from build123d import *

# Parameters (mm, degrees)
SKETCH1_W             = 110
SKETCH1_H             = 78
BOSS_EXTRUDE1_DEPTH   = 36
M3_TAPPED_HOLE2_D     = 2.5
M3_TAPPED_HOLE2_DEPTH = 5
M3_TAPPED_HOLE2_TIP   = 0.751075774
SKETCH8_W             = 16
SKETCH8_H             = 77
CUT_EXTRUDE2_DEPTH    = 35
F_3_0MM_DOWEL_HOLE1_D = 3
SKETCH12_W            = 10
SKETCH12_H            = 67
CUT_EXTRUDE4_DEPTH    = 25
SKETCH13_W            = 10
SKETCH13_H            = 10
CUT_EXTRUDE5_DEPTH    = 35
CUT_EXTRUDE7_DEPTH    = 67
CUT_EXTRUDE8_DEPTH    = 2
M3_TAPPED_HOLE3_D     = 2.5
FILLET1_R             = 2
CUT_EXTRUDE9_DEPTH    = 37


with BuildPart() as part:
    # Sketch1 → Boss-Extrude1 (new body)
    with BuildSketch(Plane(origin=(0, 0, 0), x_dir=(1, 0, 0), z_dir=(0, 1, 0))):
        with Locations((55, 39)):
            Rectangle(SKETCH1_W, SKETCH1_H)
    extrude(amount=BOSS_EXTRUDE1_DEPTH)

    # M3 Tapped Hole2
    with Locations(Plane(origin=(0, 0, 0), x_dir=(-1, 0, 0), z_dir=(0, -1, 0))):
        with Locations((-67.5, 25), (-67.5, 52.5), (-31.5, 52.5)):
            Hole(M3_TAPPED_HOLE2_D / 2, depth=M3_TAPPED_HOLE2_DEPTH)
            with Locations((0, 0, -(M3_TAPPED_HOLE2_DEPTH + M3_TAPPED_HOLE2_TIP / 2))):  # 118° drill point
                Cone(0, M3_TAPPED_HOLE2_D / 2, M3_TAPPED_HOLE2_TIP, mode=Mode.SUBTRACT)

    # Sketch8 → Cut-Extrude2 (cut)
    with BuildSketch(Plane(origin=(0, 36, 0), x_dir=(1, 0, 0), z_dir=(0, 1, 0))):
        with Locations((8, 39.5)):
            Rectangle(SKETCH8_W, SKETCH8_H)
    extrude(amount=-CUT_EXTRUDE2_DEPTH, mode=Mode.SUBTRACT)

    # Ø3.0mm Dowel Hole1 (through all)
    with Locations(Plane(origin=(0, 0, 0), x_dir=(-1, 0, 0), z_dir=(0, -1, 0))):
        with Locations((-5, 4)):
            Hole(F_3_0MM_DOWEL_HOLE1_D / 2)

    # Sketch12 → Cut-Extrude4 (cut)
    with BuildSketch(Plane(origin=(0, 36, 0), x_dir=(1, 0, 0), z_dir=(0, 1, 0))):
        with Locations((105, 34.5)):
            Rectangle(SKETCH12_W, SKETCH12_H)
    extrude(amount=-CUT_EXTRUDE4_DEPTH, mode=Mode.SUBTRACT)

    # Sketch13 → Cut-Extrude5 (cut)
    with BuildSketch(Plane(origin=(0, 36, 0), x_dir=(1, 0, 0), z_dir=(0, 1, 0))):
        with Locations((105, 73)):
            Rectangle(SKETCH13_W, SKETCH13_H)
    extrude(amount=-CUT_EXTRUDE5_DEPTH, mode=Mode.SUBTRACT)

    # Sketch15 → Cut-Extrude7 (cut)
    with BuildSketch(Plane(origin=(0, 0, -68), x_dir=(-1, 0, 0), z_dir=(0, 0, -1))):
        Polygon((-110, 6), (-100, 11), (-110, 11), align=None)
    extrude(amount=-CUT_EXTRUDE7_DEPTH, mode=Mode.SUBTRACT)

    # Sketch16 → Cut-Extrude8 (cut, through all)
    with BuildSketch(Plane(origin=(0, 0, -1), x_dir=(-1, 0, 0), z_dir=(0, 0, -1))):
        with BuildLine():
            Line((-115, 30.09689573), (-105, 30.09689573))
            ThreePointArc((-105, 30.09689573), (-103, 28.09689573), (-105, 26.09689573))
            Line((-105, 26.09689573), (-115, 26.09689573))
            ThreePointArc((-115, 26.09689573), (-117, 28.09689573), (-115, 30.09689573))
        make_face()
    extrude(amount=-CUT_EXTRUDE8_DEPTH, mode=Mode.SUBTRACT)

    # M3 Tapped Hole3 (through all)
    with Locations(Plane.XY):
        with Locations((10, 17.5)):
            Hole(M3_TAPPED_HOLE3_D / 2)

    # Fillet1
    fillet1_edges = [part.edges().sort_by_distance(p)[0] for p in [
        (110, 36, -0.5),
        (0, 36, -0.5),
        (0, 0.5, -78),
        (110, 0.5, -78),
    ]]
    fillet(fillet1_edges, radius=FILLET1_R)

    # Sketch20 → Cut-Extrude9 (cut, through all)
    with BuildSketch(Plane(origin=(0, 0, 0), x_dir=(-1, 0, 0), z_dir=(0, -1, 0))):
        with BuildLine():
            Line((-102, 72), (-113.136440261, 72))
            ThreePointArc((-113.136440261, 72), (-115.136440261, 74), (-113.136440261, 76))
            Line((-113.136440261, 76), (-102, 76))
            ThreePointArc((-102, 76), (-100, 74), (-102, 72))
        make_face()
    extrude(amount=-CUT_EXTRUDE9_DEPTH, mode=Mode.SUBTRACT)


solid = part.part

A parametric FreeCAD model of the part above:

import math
import FreeCAD as App
import Part
import Sketcher
from FreeCAD import Vector
Q = App.Units.Quantity


def edges_at(feature, points):
    """Names of the edges that pass closest to the given points."""
    edges = feature.Shape.Edges
    near = lambda p: min(range(len(edges)), key=lambda i: edges[i].distToShape(Part.Vertex(*p))[0])
    return sorted({f"Edge{near(p) + 1}" for p in points})


def add_polygon(sketch, points):
    """Adds a closed chain of lines whose ends are joined by coincident constraints."""
    first, n = sketch.GeometryCount, len(points)
    for a, b in zip(points, points[1:] + points[:1]):
        sketch.addGeometry(Part.LineSegment(App.Vector(*a, 0), App.Vector(*b, 0)), False)
    for i in range(n):
        sketch.addConstraint(Sketcher.Constraint("Coincident", first + i, 2, first + (i + 1) % n, 1))

doc = App.newDocument("Part")
body = doc.addObject("PartDesign::Body", "Body")

sketch1 = doc.addObject("Sketcher::SketchObject", "Sketch")
body.addObject(sketch1)
sketch1.AttachmentSupport = (doc.XZ_Plane, [""])
sketch1.MapMode = "FlatFace"
add_polygon(sketch1, [(0, -78), (0, 0), (110, 0), (110, -78)])
sketch1.addConstraint([
    Sketcher.Constraint("Vertical", 0),
    Sketcher.Constraint("Horizontal", 1),
    Sketcher.Constraint("Vertical", 2),
    Sketcher.Constraint("Horizontal", 3),
    Sketcher.Constraint("Coincident", 0, 2, -1, 1),
    Sketcher.Constraint("DistanceX", 1, 1, 1, 2, Q("110 mm")),
    Sketcher.Constraint("DistanceY", 0, 1, 0, 2, Q("78 mm")),
])
pad1 = doc.addObject("PartDesign::Pad", "Pad")
body.addObject(pad1)
pad1.Profile = sketch1
pad1.Length = 36
pad1.Reversed = True

sketch2 = doc.addObject("Sketcher::SketchObject", "Sketch001")
body.addObject(sketch2)
sketch2.AttachmentSupport = (doc.XZ_Plane, [""])
sketch2.MapMode = "FlatFace"
sketch2.addGeometry([
    Part.Circle(Vector(67.5, -25, 0), Vector(0, 0, 1), 1.25),
    Part.Circle(Vector(67.5, -52.5, 0), Vector(0, 0, 1), 1.25),
    Part.Circle(Vector(31.5, -52.5, 0), Vector(0, 0, 1), 1.25),
], False)
sketch2.addConstraint([
    Sketcher.Constraint("Equal", 0, 1),
    Sketcher.Constraint("Equal", 1, 2),
    Sketcher.Constraint("Horizontal", 1, 3, 2, 3),
    Sketcher.Constraint("Vertical", 0, 3, 1, 3),
    Sketcher.Constraint("Diameter", 0, Q("2.5 mm")),
    Sketcher.Constraint("DistanceY", 0, 3, -1, 1, Q("25 mm")),
    Sketcher.Constraint("DistanceX", 2, 3, 1, 3, Q("36 mm")),
    Sketcher.Constraint("DistanceX", -1, 1, 0, 3, Q("67.5 mm")),
    Sketcher.Constraint("DistanceY", 1, 3, -1, 1, Q("52.5 mm")),
])
doc.recompute()
hole = doc.addObject("PartDesign::Hole", "Hole")
body.addObject(hole)
hole.Profile = sketch2
hole.ThreadType = "None"
hole.Diameter = 2.5
hole.DepthType = "Dimension"
hole.Depth = 5
hole.DrillPoint = "Angled"
hole.DrillPointAngle = 118

sketch3 = doc.addObject("Sketcher::SketchObject", "Sketch002")
body.addObject(sketch3)
sketch3.AttachmentSupport = (doc.XZ_Plane, [""])
sketch3.MapMode = "FlatFace"
sketch3.AttachmentOffset = App.Placement(Vector(0, 0, -36), App.Rotation())
add_polygon(sketch3, [(0, -78), (0, -1), (16, -1), (16, -78)])
sketch3.addConstraint([
    Sketcher.Constraint("Vertical", 0),
    Sketcher.Constraint("Horizontal", 1),
    Sketcher.Constraint("Vertical", 2),
    Sketcher.Constraint("Horizontal", 3),
    Sketcher.Constraint("PointOnObject", 0, 2, -2),
    Sketcher.Constraint("DistanceX", 1, 1, 1, 2, Q("16 mm")),
    Sketcher.Constraint("DistanceY", 0, 1, 0, 2, Q("77 mm")),
    Sketcher.Constraint("DistanceY", 0, 2, -1, 1, Q("1 mm")),
])
pocket1 = doc.addObject("PartDesign::Pocket", "Pocket")
body.addObject(pocket1)
pocket1.Profile = sketch3
pocket1.Length = 35
pocket1.Reversed = True

sketch4 = doc.addObject("Sketcher::SketchObject", "Sketch003")
body.addObject(sketch4)
sketch4.AttachmentSupport = (doc.XZ_Plane, [""])
sketch4.MapMode = "FlatFace"
sketch4.addGeometry(Part.Circle(Vector(5, -4, 0), Vector(0, 0, 1), 1.5), False)
sketch4.addConstraint([
    Sketcher.Constraint("Diameter", 0, Q("3 mm")),
    Sketcher.Constraint("DistanceX", -1, 1, 0, 3, Q("5 mm")),
    Sketcher.Constraint("DistanceY", 0, 3, -1, 1, Q("4 mm")),
])
doc.recompute()
hole2 = doc.addObject("PartDesign::Hole", "Hole001")
body.addObject(hole2)
hole2.Profile = sketch4
hole2.ThreadType = "None"
hole2.Diameter = 3
hole2.DepthType = "ThroughAll"

sketch5 = doc.addObject("Sketcher::SketchObject", "Sketch004")
body.addObject(sketch5)
sketch5.AttachmentSupport = (doc.XZ_Plane, [""])
sketch5.MapMode = "FlatFace"
sketch5.AttachmentOffset = App.Placement(Vector(0, 0, -36), App.Rotation())
add_polygon(sketch5, [(100, -68), (100, -1), (110, -1), (110, -68)])
sketch5.addConstraint([
    Sketcher.Constraint("Vertical", 0),
    Sketcher.Constraint("Horizontal", 1),
    Sketcher.Constraint("Vertical", 2),
    Sketcher.Constraint("Horizontal", 3),
    Sketcher.Constraint("DistanceX", 1, 1, 1, 2, Q("10 mm")),
    Sketcher.Constraint("DistanceY", 0, 1, 0, 2, Q("67 mm")),
    Sketcher.Constraint("DistanceX", -1, 1, 0, 2, Q("100 mm")),
    Sketcher.Constraint("DistanceY", 0, 2, -1, 1, Q("1 mm")),
])
pocket2 = doc.addObject("PartDesign::Pocket", "Pocket001")
body.addObject(pocket2)
pocket2.Profile = sketch5
pocket2.Length = 25
pocket2.Reversed = True

sketch6 = doc.addObject("Sketcher::SketchObject", "Sketch005")
body.addObject(sketch6)
sketch6.AttachmentSupport = (doc.XZ_Plane, [""])
sketch6.MapMode = "FlatFace"
sketch6.AttachmentOffset = App.Placement(Vector(0, 0, -36), App.Rotation())
add_polygon(sketch6, [(100, -78), (100, -68), (110, -68), (110, -78)])
sketch6.addConstraint([
    Sketcher.Constraint("Vertical", 0),
    Sketcher.Constraint("Horizontal", 1),
    Sketcher.Constraint("Vertical", 2),
    Sketcher.Constraint("Horizontal", 3),
    Sketcher.Constraint("Equal", 3, 0),
    Sketcher.Constraint("DistanceX", 1, 1, 1, 2, Q("10 mm")),
    Sketcher.Constraint("DistanceX", -1, 1, 0, 2, Q("100 mm")),
    Sketcher.Constraint("DistanceY", 0, 2, -1, 1, Q("68 mm")),
])
pocket3 = doc.addObject("PartDesign::Pocket", "Pocket002")
body.addObject(pocket3)
pocket3.Profile = sketch6
pocket3.Length = 35
pocket3.Reversed = True

sketch7 = doc.addObject("Sketcher::SketchObject", "Sketch006")
body.addObject(sketch7)
sketch7.AttachmentSupport = (doc.XY_Plane, [""])
sketch7.MapMode = "FlatFace"
sketch7.AttachmentOffset = App.Placement(Vector(0, 0, -68), App.Rotation())
add_polygon(sketch7, [(110, 6), (100, 11), (110, 11)])
sketch7.addConstraint([
    Sketcher.Constraint("Horizontal", 1),
    Sketcher.Constraint("Vertical", 2),
    Sketcher.Constraint("DistanceX", 1, 1, 1, 2, Q("10 mm")),
    Sketcher.Constraint("DistanceY", 2, 2, 2, 1, Q("5 mm")),
    Sketcher.Constraint("DistanceX", -1, 1, 0, 2, Q("100 mm")),
    Sketcher.Constraint("DistanceY", -1, 1, 0, 2, Q("11 mm")),
])
pocket4 = doc.addObject("PartDesign::Pocket", "Pocket003")
body.addObject(pocket4)
pocket4.Profile = sketch7
pocket4.Length = 67
pocket4.Reversed = True

sketch8 = doc.addObject("Sketcher::SketchObject", "Sketch007")
body.addObject(sketch8)
sketch8.AttachmentSupport = (doc.XY_Plane, [""])
sketch8.MapMode = "FlatFace"
sketch8.AttachmentOffset = App.Placement(Vector(0, 0, -1), App.Rotation())
sketch8.addGeometry([
    Part.LineSegment(Vector(105, 30.096896, 0), Vector(115, 30.096896, 0)),
    Part.ArcOfCircle(Part.Circle(Vector(115, 28.096896, 0), Vector(0, 0, 1), 2), math.radians(-90), math.radians(90)),
    Part.LineSegment(Vector(115, 26.096896, 0), Vector(105, 26.096896, 0)),
    Part.ArcOfCircle(Part.Circle(Vector(105, 28.096896, 0), Vector(0, 0, 1), 2), math.radians(90), math.radians(270)),
], False)
sketch8.addConstraint([
    Sketcher.Constraint("Tangent", 0, 2, 1, 2),
    Sketcher.Constraint("Tangent", 1, 1, 2, 1),
    Sketcher.Constraint("Tangent", 2, 2, 3, 2),
    Sketcher.Constraint("Tangent", 3, 1, 0, 1),
    Sketcher.Constraint("Horizontal", 0),
    Sketcher.Constraint("Horizontal", 2),
    Sketcher.Constraint("Radius", 1, Q("2 mm")),
    Sketcher.Constraint("DistanceX", 0, 1, 0, 2, Q("10 mm")),
    Sketcher.Constraint("DistanceX", -1, 1, 1, 3, Q("115 mm")),
    Sketcher.Constraint("DistanceY", -1, 1, 1, 3, Q("28.096896 mm")),
])
pocket5 = doc.addObject("PartDesign::Pocket", "Pocket004")
body.addObject(pocket5)
pocket5.Profile = sketch8
pocket5.Type = "ThroughAll"
pocket5.Reversed = True

sketch9 = doc.addObject("Sketcher::SketchObject", "Sketch008")
body.addObject(sketch9)
sketch9.AttachmentSupport = (doc.XY_Plane, [""])
sketch9.MapMode = "FlatFace"
sketch9.addGeometry(Part.Circle(Vector(10, 17.5, 0), Vector(0, 0, 1), 1.25), False)
sketch9.addConstraint([
    Sketcher.Constraint("Diameter", 0, Q("2.5 mm")),
    Sketcher.Constraint("DistanceX", -1, 1, 0, 3, Q("10 mm")),
    Sketcher.Constraint("DistanceY", -1, 1, 0, 3, Q("17.5 mm")),
])
doc.recompute()
hole3 = doc.addObject("PartDesign::Hole", "Hole002")
body.addObject(hole3)
hole3.Profile = sketch9
hole3.ThreadType = "None"
hole3.Diameter = 2.5
hole3.DepthType = "ThroughAll"
doc.recompute()

fillet = doc.addObject("PartDesign::Fillet", "Fillet")
body.addObject(fillet)
fillet.Base = (hole3, edges_at(hole3, [
    (110, 36, -0.5),
    (0, 36, -0.5),
    (0, 0.5, -78),
    (110, 0.5, -78),
]))
fillet.Radius = 2

sketch10 = doc.addObject("Sketcher::SketchObject", "Sketch009")
body.addObject(sketch10)
sketch10.AttachmentSupport = (doc.XZ_Plane, [""])
sketch10.MapMode = "FlatFace"
sketch10.addGeometry([
    Part.LineSegment(Vector(113.13644, -72, 0), Vector(102, -72, 0)),
    Part.ArcOfCircle(Part.Circle(Vector(102, -74, 0), Vector(0, 0, 1), 2), math.radians(90), math.radians(270)),
    Part.LineSegment(Vector(102, -76, 0), Vector(113.13644, -76, 0)),
    Part.ArcOfCircle(Part.Circle(Vector(113.13644, -74, 0), Vector(0, 0, 1), 2), math.radians(-90), math.radians(90)),
], False)
sketch10.addConstraint([
    Sketcher.Constraint("Tangent", 0, 2, 1, 1),
    Sketcher.Constraint("Tangent", 1, 2, 2, 1),
    Sketcher.Constraint("Tangent", 2, 2, 3, 1),
    Sketcher.Constraint("Tangent", 3, 2, 0, 1),
    Sketcher.Constraint("Horizontal", 0),
    Sketcher.Constraint("Horizontal", 2),
    Sketcher.Constraint("Radius", 1, Q("2 mm")),
    Sketcher.Constraint("DistanceX", -1, 1, 1, 3, Q("102 mm")),
    Sketcher.Constraint("DistanceY", 1, 3, -1, 1, Q("74 mm")),
    Sketcher.Constraint("DistanceX", 0, 2, 0, 1, Q("11.13644 mm")),
])
pocket6 = doc.addObject("PartDesign::Pocket", "Pocket005")
body.addObject(pocket6)
pocket6.Profile = sketch10
pocket6.Type = "ThroughAll"

doc.recompute()
